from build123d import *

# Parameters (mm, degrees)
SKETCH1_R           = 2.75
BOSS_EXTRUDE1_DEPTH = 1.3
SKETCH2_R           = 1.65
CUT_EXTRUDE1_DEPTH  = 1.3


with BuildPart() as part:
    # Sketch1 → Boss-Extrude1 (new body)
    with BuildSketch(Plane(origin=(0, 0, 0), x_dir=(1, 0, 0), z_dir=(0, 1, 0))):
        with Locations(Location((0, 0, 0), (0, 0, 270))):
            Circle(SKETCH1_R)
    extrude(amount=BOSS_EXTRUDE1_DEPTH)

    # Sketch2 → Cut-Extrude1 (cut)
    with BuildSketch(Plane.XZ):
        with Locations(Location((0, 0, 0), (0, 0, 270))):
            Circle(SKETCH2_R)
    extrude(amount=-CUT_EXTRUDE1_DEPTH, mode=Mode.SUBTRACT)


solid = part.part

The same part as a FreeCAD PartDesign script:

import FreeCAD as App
import Part
import Sketcher

V = App.Vector

doc = App.newDocument("Part")
params = doc.addObject("Spreadsheet::Sheet", "Params")
for row, (alias, value) in enumerate([
    ("sketch1_diameter", "5.5 mm"),
    ("pad1_length", "1.3 mm"),
    ("sketch2_diameter", "3.3 mm"),
    ("pocket1_length", "1.3 mm"),
], start=1):
    params.set(f"A{row}", alias)
    params.set(f"B{row}", "=" + value)
    params.setAlias(f"B{row}", alias)

body = doc.addObject("PartDesign::Body", "Body")

sketch1 = body.newObject("Sketcher::SketchObject", "Sketch")
sketch1.AttachmentSupport = (doc.getObject("XZ_Plane"), [""])
sketch1.MapMode = "FlatFace"
sketch1.addGeometry(Part.Circle(V(0, 0, 0), V(0, 0, 1), 2.8), False)
sketch1.addConstraint(Sketcher.Constraint("Coincident", 0, 3, -1, 1))
sketch1.addConstraint(Sketcher.Constraint("Diameter", 0, 5.5))
sketch1.setExpression("Constraints[1]", "Params.sketch1_diameter")
pad1 = body.newObject("PartDesign::Pad", "Pad")
pad1.Profile = sketch1
pad1.setExpression("Length", "Params.pad1_length")
pad1.Reversed = True

sketch2 = body.newObject("Sketcher::SketchObject", "Sketch001")
sketch2.AttachmentSupport = (doc.getObject("XZ_Plane"), [""])
sketch2.MapMode = "FlatFace"
sketch2.addGeometry(Part.Circle(V(0, 0, 0), V(0, 0, 1), 1.6), False)
sketch2.addConstraint(Sketcher.Constraint("Coincident", 0, 3, -1, 1))
sketch2.addConstraint(Sketcher.Constraint("Diameter", 0, 3.3))
sketch2.setExpression("Constraints[1]", "Params.sketch2_diameter")
pocket1 = body.newObject("PartDesign::Pocket", "Pocket")
pocket1.Profile = sketch2
pocket1.setExpression("Length", "Params.pocket1_length")

doc.recompute()
